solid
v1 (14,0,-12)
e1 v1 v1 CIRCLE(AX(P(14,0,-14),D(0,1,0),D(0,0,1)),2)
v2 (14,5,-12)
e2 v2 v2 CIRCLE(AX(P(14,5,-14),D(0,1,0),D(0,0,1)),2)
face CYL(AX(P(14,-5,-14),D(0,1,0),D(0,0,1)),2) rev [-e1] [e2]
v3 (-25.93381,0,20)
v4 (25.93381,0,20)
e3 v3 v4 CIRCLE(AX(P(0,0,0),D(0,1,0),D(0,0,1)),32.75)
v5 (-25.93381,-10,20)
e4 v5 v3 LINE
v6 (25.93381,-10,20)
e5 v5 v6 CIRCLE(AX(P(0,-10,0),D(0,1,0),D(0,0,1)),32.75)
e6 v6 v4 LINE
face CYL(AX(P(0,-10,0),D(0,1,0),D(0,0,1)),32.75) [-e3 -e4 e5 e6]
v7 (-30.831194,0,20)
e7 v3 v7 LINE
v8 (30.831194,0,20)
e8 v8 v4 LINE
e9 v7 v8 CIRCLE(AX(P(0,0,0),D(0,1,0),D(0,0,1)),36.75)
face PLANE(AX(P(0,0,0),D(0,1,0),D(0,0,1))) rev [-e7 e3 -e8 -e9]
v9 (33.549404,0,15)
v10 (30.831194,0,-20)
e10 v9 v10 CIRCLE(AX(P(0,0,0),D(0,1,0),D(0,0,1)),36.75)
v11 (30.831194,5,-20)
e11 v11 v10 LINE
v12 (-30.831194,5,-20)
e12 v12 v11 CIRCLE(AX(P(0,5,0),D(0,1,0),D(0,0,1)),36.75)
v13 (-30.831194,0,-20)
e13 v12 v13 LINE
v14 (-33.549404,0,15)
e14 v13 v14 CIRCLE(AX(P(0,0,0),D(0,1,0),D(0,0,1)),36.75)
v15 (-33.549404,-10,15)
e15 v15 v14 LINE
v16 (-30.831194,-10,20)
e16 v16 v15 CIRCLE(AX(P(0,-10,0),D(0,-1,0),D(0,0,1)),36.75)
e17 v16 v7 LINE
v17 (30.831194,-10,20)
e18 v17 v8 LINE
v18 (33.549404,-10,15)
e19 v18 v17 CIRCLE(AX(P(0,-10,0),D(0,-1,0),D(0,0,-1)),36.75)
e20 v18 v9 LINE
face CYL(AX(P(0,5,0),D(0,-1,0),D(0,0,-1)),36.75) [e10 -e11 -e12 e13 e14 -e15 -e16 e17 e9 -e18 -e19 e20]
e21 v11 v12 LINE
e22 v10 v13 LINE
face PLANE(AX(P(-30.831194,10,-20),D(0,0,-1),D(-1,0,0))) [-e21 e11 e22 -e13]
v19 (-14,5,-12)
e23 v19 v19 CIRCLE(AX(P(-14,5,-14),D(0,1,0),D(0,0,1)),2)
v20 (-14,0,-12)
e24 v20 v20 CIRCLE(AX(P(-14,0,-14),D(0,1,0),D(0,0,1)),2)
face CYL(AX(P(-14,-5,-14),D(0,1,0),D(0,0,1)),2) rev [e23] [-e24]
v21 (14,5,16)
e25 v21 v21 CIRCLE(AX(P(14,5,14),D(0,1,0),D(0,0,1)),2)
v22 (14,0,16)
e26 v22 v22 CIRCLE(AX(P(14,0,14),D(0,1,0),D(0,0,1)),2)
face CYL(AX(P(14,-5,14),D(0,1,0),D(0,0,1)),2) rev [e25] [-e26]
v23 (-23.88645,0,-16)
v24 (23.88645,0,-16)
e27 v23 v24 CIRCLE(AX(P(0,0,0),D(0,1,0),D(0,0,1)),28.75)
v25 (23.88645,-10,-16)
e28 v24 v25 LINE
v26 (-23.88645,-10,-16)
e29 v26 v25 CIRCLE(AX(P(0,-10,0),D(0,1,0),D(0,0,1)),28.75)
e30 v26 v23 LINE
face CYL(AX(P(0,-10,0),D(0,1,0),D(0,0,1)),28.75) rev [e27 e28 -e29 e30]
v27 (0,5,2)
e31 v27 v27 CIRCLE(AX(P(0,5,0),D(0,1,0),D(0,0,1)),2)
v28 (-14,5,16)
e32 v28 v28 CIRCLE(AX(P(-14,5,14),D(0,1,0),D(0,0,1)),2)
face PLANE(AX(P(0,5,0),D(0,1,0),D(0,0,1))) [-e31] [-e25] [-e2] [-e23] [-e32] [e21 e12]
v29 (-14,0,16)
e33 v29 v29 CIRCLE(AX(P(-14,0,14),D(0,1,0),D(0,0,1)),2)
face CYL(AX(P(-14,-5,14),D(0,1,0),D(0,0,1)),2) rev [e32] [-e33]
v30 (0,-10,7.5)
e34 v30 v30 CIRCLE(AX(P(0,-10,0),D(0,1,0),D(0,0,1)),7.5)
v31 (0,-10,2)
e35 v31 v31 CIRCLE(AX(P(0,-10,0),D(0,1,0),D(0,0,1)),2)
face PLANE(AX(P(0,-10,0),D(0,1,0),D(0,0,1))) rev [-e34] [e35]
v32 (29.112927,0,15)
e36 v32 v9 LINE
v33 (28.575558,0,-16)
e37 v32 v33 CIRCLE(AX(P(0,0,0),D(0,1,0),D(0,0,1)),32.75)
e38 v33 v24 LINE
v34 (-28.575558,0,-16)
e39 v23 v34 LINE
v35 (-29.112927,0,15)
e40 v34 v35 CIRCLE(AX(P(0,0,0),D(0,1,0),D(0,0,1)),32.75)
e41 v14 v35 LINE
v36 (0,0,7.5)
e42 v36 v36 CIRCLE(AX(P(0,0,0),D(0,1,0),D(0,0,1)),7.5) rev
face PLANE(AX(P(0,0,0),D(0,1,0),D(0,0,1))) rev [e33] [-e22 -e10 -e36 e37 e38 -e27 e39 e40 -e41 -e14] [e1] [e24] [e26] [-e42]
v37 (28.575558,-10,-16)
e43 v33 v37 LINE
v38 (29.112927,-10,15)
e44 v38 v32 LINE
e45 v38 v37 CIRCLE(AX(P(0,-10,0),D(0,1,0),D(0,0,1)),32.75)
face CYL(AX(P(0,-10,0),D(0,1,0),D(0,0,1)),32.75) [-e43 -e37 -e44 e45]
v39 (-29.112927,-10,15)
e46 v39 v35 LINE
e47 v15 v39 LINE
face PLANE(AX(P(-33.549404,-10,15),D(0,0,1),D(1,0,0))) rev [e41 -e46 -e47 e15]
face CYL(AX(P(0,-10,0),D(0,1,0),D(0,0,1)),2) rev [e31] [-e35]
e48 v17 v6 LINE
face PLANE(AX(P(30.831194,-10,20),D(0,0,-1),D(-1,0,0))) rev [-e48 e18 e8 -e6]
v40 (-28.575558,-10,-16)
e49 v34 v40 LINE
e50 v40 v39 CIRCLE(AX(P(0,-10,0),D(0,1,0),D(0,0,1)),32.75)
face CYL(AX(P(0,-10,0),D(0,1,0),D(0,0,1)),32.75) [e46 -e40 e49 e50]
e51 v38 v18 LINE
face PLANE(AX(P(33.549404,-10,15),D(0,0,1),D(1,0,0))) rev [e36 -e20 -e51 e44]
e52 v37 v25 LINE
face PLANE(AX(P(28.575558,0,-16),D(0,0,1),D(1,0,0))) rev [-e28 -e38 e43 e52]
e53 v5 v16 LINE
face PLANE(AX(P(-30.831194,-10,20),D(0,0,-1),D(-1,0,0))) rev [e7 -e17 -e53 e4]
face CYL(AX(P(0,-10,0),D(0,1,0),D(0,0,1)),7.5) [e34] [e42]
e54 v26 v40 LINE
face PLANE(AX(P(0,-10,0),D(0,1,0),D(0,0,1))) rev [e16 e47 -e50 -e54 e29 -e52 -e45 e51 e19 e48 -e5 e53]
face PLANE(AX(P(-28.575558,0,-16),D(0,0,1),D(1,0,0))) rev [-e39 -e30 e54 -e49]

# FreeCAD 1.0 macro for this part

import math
import FreeCAD as App
import Part
import Sketcher

V = App.Vector
Q = App.Units.Quantity


def add_polygon(sketch, points):
    """Adds a closed chain of lines whose ends are joined by coincident constraints."""
    first, n = sketch.GeometryCount, len(points)
    for a, b in zip(points, points[1:] + points[:1]):
        sketch.addGeometry(Part.LineSegment(App.Vector(*a, 0), App.Vector(*b, 0)), False)
    for i in range(n):
        sketch.addConstraint(Sketcher.Constraint("Coincident", first + i, 2, first + (i + 1) % n, 1))

doc = App.newDocument("Part")
body = doc.addObject("PartDesign::Body", "Body")

# Sketch on XZ plane
sketch1 = body.newObject("Sketcher::SketchObject", "Sketch")
sketch1.AttachmentSupport = (doc.getObject("XZ_Plane"), [""])
sketch1.MapMode = "FlatFace"
sketch1.addGeometry(Part.Circle(V(0, 0, 0), V(0, 0, 1), 7.5), False)
sketch1.addGeometry(Part.Circle(V(0, 0, 0), V(0, 0, 1), 2), False)
sketch1.addConstraint(Sketcher.Constraint("Coincident", 0, 3, -1, 1))
sketch1.addConstraint(Sketcher.Constraint("Coincident", 1, 3, -1, 1))
sketch1.addConstraint(Sketcher.Constraint("Diameter", 0, Q("15 mm")))
sketch1.addConstraint(Sketcher.Constraint("Diameter", 1, Q("4 mm")))
pad1 = body.newObject("PartDesign::Pad", "Pad")
pad1.Profile = sketch1
pad1.Type = "TwoLengths"
pad1.Length = 5
pad1.Length2 = 10
pad1.Reversed = True

# Sketch on XZ plane
sketch2 = body.newObject("Sketcher::SketchObject", "Sketch001")
sketch2.AttachmentSupport = (doc.getObject("XZ_Plane"), [""])
sketch2.MapMode = "FlatFace"
sketch2.addGeometry(Part.Circle(V(0, 0, 0), V(0, 0, 1), 36.75), False)
sketch2.addGeometry(Part.Circle(V(0, 0, 0), V(0, 0, 1), 2.5), False)
sketch2.addConstraint(Sketcher.Constraint("Coincident", 0, 3, -1, 1))
sketch2.addConstraint(Sketcher.Constraint("Coincident", 1, 3, -1, 1))
sketch2.addConstraint(Sketcher.Constraint("Diameter", 1, Q("5 mm")))
sketch2.addConstraint(Sketcher.Constraint("Diameter", 0, Q("73.5 mm")))
pad2 = body.newObject("PartDesign::Pad", "Pad001")
pad2.Profile = sketch2
pad2.Length = 5
pad2.Reversed = True

# Sketch on XZ plane
sketch3 = body.newObject("Sketcher::SketchObject", "Sketch002")
sketch3.AttachmentSupport = (doc.getObject("XZ_Plane"), [""])
sketch3.MapMode = "FlatFace"
sketch3.AttachmentOffset = App.Placement(V(0, 0, -5), App.Rotation())
sketch3.addGeometry(Part.Circle(V(0, 0, 0), V(0, 0, 1), 32.75), False)
sketch3.addGeometry(Part.Circle(V(0, 0, 0), V(0, 0, 1), 28.75), False)
sketch3.addConstraint(Sketcher.Constraint("Coincident", 0, 3, -1, 1))
sketch3.addConstraint(Sketcher.Constraint("Coincident", 1, 3, -1, 1))
sketch3.addConstraint(Sketcher.Constraint("Diameter", 0, Q("65.5 mm")))
sketch3.addConstraint(Sketcher.Constraint("Diameter", 1, Q("57.5 mm")))
pad3 = body.newObject("PartDesign::Pad", "Pad002")
pad3.Profile = sketch3
pad3.Length = 15

# Sketch on XZ plane
sketch4 = body.newObject("Sketcher::SketchObject", "Sketch003")
sketch4.AttachmentSupport = (doc.getObject("XZ_Plane"), [""])
sketch4.MapMode = "FlatFace"
add_polygon(sketch4, [(-30.831194, -36.75), (-30.831194, -20), (30.831194, -20), (30.831194, -36.75)])  # lines 0-3
sketch4.addConstraint(Sketcher.Constraint("Vertical", 0))
sketch4.addConstraint(Sketcher.Constraint("Horizontal", 1))
sketch4.addConstraint(Sketcher.Constraint("Vertical", 2))
sketch4.addConstraint(Sketcher.Constraint("Horizontal", 3))
sketch4.addConstraint(Sketcher.Constraint("DistanceY", 0, 2, -1, 1, Q("20 mm")))
sketch4.addConstraint(Sketcher.Constraint("DistanceY", 0, 1, 0, 2, Q("16.75 mm")))
sketch4.addConstraint(Sketcher.Constraint("DistanceX", 1, 1, 1, 2, Q("61.662387 mm")))
sketch4.addConstraint(Sketcher.Constraint("DistanceX", 0, 2, -1, 1, Q("30.831194 mm")))
pocket1 = body.newObject("PartDesign::Pocket", "Pocket")
pocket1.Profile = sketch4
pocket1.Type = "ThroughAll"
pocket1.Midplane = True

# Sketch on XZ plane
sketch5 = body.newObject("Sketcher::SketchObject", "Sketch004")
sketch5.AttachmentSupport = (doc.getObject("XZ_Plane"), [""])
sketch5.MapMode = "FlatFace"
sketch5.AttachmentOffset = App.Placement(V(0, 0, 10), App.Rotation())
add_polygon(sketch5, [(-28.575558, -16), (-28.575558, -20), (-20.575558, -20), (-20.575558, -16)])  # lines 0-3
add_polygon(sketch5, [(20.575558, -16), (20.575558, -20), (28.575558, -20), (28.575558, -16)])  # lines 4-7
sketch5.addConstraint(Sketcher.Constraint("Vertical", 0))
sketch5.addConstraint(Sketcher.Constraint("Horizontal", 1))
sketch5.addConstraint(Sketcher.Constraint("Vertical", 2))
sketch5.addConstraint(Sketcher.Constraint("Horizontal", 3))
sketch5.addConstraint(Sketcher.Constraint("Vertical", 4))
sketch5.addConstraint(Sketcher.Constraint("Horizontal", 5))
sketch5.addConstraint(Sketcher.Constraint("Vertical", 6))
sketch5.addConstraint(Sketcher.Constraint("Horizontal", 7))
sketch5.addConstraint(Sketcher.Constraint("Symmetric", 1, 2, 4, 2, -2))
sketch5.addConstraint(Sketcher.Constraint("Symmetric", 3, 2, 6, 2, -2))
sketch5.addConstraint(Sketcher.Constraint("DistanceX", 1, 1, 1, 2, Q("8 mm")))
sketch5.addConstraint(Sketcher.Constraint("DistanceY", 0, 2, 0, 1, Q("4 mm")))
sketch5.addConstraint(Sketcher.Constraint("DistanceY", 0, 2, -1, 1, Q("20 mm")))
sketch5.addConstraint(Sketcher.Constraint("DistanceX", 0, 2, -1, 1, Q("28.575558 mm")))
pocket2 = body.newObject("PartDesign::Pocket", "Pocket001")
pocket2.Profile = sketch5
pocket2.Length = 10

# Sketch on XZ plane
sketch6 = body.newObject("Sketcher::SketchObject", "Sketch005")
sketch6.AttachmentSupport = (doc.getObject("XZ_Plane"), [""])
sketch6.MapMode = "FlatFace"
sketch6.addGeometry(Part.LineSegment(V(-25.93381, 20, 0), V(-30.831194, 20, 0)), False)
sketch6.addGeometry(Part.ArcOfCircle(Part.Circle(V(0, 0, 0), V(0, 0, 1), 36.75), math.radians(147.028781), math.radians(155.910494)), False)
sketch6.addGeometry(Part.LineSegment(V(-33.549404, 15, 0), V(-29.112927, 15, 0)), False)
sketch6.addGeometry(Part.ArcOfCircle(Part.Circle(V(0, 0, 0), V(0, 0, 1), 32.75), math.radians(142.360804), math.radians(152.74089)), False)
sketch6.addGeometry(Part.LineSegment(V(29.112927, 15, 0), V(33.549404, 15, 0)), False)
sketch6.addGeometry(Part.ArcOfCircle(Part.Circle(V(0, 0, 0), V(0, 0, 1), 36.75), math.radians(24.089506), math.radians(32.971219)), False)
sketch6.addGeometry(Part.LineSegment(V(30.831194, 20, 0), V(25.93381, 20, 0)), False)
sketch6.addGeometry(Part.ArcOfCircle(Part.Circle(V(0, 0, 0), V(0, 0, 1), 32.75), math.radians(27.25911), math.radians(37.639196)), False)
sketch6.addConstraint(Sketcher.Constraint("Coincident", 0, 2, 1, 1))
sketch6.addConstraint(Sketcher.Constraint("Coincident", 1, 2, 2, 1))
sketch6.addConstraint(Sketcher.Constraint("Coincident", 2, 2, 3, 2))
sketch6.addConstraint(Sketcher.Constraint("Coincident", 3, 1, 0, 1))
sketch6.addConstraint(Sketcher.Constraint("Coincident", 4, 2, 5, 1))
sketch6.addConstraint(Sketcher.Constraint("Coincident", 5, 2, 6, 1))
sketch6.addConstraint(Sketcher.Constraint("Coincident", 6, 2, 7, 2))
sketch6.addConstraint(Sketcher.Constraint("Coincident", 7, 1, 4, 1))
sketch6.addConstraint(Sketcher.Constraint("Horizontal", 0))
sketch6.addConstraint(Sketcher.Constraint("Horizontal", 2))
sketch6.addConstraint(Sketcher.Constraint("Horizontal", 4))
sketch6.addConstraint(Sketcher.Constraint("Horizontal", 6))
sketch6.addConstraint(Sketcher.Constraint("Coincident", 1, 3, -1, 1))
sketch6.addConstraint(Sketcher.Constraint("Coincident", 3, 3, -1, 1))
sketch6.addConstraint(Sketcher.Constraint("Coincident", 5, 3, -1, 1))
sketch6.addConstraint(Sketcher.Constraint("Coincident", 7, 3, -1, 1))
sketch6.addConstraint(Sketcher.Constraint("Equal", 1, 5))
sketch6.addConstraint(Sketcher.Constraint("Equal", 3, 7))
sketch6.addConstraint(Sketcher.Constraint("Horizontal", 2, 2, 4, 2))
sketch6.addConstraint(Sketcher.Constraint("Horizontal", 3, 1, 5, 2))
sketch6.addConstraint(Sketcher.Constraint("Radius", 1, Q("36.75 mm")))
sketch6.addConstraint(Sketcher.Constraint("Radius", 3, Q("32.75 mm")))
sketch6.addConstraint(Sketcher.Constraint("DistanceY", -1, 1, 0, 2, Q("20 mm")))
sketch6.addConstraint(Sketcher.Constraint("DistanceY", -1, 1, 1, 2, Q("15 mm")))
pad4 = body.newObject("PartDesign::Pad", "Pad003")
pad4.Profile = sketch6
pad4.Length = 10

# Sketch on XZ plane
sketch7 = body.newObject("Sketcher::SketchObject", "Sketch006")
sketch7.AttachmentSupport = (doc.getObject("XZ_Plane"), [""])
sketch7.MapMode = "FlatFace"
sketch7.AttachmentOffset = App.Placement(V(0, 0, -5), App.Rotation())
sketch7.addGeometry(Part.Circle(V(14, 14, 0), V(0, 0, 1), 2), False)
sketch7.addGeometry(Part.Circle(V(-14, 14, 0), V(0, 0, 1), 2), False)
sketch7.addGeometry(Part.Circle(V(-14, -14, 0), V(0, 0, 1), 2), False)
sketch7.addGeometry(Part.Circle(V(14, -14, 0), V(0, 0, 1), 2), False)
sketch7.addConstraint(Sketcher.Constraint("Equal", 0, 1))
sketch7.addConstraint(Sketcher.Constraint("Equal", 1, 2))
sketch7.addConstraint(Sketcher.Constraint("Equal", 2, 3))
sketch7.addConstraint(Sketcher.Constraint("Symmetric", 0, 3, 2, 3, -1, 1))
sketch7.addConstraint(Sketcher.Constraint("Symmetric", 1, 3, 3, 3, -1, 1))
sketch7.addConstraint(Sketcher.Constraint("Symmetric", 0, 3, 1, 3, -2))
sketch7.addConstraint(Sketcher.Constraint("Diameter", 0, Q("4 mm")))
sketch7.addConstraint(Sketcher.Constraint("DistanceX", -1, 1, 0, 3, Q("14 mm")))
sketch7.addConstraint(Sketcher.Constraint("DistanceY", -1, 1, 0, 3, Q("14 mm")))
pocket3 = body.newObject("PartDesign::Pocket", "Pocket002")
pocket3.Profile = sketch7
pocket3.Length = 10
pocket3.Reversed = True

doc.recompute()
